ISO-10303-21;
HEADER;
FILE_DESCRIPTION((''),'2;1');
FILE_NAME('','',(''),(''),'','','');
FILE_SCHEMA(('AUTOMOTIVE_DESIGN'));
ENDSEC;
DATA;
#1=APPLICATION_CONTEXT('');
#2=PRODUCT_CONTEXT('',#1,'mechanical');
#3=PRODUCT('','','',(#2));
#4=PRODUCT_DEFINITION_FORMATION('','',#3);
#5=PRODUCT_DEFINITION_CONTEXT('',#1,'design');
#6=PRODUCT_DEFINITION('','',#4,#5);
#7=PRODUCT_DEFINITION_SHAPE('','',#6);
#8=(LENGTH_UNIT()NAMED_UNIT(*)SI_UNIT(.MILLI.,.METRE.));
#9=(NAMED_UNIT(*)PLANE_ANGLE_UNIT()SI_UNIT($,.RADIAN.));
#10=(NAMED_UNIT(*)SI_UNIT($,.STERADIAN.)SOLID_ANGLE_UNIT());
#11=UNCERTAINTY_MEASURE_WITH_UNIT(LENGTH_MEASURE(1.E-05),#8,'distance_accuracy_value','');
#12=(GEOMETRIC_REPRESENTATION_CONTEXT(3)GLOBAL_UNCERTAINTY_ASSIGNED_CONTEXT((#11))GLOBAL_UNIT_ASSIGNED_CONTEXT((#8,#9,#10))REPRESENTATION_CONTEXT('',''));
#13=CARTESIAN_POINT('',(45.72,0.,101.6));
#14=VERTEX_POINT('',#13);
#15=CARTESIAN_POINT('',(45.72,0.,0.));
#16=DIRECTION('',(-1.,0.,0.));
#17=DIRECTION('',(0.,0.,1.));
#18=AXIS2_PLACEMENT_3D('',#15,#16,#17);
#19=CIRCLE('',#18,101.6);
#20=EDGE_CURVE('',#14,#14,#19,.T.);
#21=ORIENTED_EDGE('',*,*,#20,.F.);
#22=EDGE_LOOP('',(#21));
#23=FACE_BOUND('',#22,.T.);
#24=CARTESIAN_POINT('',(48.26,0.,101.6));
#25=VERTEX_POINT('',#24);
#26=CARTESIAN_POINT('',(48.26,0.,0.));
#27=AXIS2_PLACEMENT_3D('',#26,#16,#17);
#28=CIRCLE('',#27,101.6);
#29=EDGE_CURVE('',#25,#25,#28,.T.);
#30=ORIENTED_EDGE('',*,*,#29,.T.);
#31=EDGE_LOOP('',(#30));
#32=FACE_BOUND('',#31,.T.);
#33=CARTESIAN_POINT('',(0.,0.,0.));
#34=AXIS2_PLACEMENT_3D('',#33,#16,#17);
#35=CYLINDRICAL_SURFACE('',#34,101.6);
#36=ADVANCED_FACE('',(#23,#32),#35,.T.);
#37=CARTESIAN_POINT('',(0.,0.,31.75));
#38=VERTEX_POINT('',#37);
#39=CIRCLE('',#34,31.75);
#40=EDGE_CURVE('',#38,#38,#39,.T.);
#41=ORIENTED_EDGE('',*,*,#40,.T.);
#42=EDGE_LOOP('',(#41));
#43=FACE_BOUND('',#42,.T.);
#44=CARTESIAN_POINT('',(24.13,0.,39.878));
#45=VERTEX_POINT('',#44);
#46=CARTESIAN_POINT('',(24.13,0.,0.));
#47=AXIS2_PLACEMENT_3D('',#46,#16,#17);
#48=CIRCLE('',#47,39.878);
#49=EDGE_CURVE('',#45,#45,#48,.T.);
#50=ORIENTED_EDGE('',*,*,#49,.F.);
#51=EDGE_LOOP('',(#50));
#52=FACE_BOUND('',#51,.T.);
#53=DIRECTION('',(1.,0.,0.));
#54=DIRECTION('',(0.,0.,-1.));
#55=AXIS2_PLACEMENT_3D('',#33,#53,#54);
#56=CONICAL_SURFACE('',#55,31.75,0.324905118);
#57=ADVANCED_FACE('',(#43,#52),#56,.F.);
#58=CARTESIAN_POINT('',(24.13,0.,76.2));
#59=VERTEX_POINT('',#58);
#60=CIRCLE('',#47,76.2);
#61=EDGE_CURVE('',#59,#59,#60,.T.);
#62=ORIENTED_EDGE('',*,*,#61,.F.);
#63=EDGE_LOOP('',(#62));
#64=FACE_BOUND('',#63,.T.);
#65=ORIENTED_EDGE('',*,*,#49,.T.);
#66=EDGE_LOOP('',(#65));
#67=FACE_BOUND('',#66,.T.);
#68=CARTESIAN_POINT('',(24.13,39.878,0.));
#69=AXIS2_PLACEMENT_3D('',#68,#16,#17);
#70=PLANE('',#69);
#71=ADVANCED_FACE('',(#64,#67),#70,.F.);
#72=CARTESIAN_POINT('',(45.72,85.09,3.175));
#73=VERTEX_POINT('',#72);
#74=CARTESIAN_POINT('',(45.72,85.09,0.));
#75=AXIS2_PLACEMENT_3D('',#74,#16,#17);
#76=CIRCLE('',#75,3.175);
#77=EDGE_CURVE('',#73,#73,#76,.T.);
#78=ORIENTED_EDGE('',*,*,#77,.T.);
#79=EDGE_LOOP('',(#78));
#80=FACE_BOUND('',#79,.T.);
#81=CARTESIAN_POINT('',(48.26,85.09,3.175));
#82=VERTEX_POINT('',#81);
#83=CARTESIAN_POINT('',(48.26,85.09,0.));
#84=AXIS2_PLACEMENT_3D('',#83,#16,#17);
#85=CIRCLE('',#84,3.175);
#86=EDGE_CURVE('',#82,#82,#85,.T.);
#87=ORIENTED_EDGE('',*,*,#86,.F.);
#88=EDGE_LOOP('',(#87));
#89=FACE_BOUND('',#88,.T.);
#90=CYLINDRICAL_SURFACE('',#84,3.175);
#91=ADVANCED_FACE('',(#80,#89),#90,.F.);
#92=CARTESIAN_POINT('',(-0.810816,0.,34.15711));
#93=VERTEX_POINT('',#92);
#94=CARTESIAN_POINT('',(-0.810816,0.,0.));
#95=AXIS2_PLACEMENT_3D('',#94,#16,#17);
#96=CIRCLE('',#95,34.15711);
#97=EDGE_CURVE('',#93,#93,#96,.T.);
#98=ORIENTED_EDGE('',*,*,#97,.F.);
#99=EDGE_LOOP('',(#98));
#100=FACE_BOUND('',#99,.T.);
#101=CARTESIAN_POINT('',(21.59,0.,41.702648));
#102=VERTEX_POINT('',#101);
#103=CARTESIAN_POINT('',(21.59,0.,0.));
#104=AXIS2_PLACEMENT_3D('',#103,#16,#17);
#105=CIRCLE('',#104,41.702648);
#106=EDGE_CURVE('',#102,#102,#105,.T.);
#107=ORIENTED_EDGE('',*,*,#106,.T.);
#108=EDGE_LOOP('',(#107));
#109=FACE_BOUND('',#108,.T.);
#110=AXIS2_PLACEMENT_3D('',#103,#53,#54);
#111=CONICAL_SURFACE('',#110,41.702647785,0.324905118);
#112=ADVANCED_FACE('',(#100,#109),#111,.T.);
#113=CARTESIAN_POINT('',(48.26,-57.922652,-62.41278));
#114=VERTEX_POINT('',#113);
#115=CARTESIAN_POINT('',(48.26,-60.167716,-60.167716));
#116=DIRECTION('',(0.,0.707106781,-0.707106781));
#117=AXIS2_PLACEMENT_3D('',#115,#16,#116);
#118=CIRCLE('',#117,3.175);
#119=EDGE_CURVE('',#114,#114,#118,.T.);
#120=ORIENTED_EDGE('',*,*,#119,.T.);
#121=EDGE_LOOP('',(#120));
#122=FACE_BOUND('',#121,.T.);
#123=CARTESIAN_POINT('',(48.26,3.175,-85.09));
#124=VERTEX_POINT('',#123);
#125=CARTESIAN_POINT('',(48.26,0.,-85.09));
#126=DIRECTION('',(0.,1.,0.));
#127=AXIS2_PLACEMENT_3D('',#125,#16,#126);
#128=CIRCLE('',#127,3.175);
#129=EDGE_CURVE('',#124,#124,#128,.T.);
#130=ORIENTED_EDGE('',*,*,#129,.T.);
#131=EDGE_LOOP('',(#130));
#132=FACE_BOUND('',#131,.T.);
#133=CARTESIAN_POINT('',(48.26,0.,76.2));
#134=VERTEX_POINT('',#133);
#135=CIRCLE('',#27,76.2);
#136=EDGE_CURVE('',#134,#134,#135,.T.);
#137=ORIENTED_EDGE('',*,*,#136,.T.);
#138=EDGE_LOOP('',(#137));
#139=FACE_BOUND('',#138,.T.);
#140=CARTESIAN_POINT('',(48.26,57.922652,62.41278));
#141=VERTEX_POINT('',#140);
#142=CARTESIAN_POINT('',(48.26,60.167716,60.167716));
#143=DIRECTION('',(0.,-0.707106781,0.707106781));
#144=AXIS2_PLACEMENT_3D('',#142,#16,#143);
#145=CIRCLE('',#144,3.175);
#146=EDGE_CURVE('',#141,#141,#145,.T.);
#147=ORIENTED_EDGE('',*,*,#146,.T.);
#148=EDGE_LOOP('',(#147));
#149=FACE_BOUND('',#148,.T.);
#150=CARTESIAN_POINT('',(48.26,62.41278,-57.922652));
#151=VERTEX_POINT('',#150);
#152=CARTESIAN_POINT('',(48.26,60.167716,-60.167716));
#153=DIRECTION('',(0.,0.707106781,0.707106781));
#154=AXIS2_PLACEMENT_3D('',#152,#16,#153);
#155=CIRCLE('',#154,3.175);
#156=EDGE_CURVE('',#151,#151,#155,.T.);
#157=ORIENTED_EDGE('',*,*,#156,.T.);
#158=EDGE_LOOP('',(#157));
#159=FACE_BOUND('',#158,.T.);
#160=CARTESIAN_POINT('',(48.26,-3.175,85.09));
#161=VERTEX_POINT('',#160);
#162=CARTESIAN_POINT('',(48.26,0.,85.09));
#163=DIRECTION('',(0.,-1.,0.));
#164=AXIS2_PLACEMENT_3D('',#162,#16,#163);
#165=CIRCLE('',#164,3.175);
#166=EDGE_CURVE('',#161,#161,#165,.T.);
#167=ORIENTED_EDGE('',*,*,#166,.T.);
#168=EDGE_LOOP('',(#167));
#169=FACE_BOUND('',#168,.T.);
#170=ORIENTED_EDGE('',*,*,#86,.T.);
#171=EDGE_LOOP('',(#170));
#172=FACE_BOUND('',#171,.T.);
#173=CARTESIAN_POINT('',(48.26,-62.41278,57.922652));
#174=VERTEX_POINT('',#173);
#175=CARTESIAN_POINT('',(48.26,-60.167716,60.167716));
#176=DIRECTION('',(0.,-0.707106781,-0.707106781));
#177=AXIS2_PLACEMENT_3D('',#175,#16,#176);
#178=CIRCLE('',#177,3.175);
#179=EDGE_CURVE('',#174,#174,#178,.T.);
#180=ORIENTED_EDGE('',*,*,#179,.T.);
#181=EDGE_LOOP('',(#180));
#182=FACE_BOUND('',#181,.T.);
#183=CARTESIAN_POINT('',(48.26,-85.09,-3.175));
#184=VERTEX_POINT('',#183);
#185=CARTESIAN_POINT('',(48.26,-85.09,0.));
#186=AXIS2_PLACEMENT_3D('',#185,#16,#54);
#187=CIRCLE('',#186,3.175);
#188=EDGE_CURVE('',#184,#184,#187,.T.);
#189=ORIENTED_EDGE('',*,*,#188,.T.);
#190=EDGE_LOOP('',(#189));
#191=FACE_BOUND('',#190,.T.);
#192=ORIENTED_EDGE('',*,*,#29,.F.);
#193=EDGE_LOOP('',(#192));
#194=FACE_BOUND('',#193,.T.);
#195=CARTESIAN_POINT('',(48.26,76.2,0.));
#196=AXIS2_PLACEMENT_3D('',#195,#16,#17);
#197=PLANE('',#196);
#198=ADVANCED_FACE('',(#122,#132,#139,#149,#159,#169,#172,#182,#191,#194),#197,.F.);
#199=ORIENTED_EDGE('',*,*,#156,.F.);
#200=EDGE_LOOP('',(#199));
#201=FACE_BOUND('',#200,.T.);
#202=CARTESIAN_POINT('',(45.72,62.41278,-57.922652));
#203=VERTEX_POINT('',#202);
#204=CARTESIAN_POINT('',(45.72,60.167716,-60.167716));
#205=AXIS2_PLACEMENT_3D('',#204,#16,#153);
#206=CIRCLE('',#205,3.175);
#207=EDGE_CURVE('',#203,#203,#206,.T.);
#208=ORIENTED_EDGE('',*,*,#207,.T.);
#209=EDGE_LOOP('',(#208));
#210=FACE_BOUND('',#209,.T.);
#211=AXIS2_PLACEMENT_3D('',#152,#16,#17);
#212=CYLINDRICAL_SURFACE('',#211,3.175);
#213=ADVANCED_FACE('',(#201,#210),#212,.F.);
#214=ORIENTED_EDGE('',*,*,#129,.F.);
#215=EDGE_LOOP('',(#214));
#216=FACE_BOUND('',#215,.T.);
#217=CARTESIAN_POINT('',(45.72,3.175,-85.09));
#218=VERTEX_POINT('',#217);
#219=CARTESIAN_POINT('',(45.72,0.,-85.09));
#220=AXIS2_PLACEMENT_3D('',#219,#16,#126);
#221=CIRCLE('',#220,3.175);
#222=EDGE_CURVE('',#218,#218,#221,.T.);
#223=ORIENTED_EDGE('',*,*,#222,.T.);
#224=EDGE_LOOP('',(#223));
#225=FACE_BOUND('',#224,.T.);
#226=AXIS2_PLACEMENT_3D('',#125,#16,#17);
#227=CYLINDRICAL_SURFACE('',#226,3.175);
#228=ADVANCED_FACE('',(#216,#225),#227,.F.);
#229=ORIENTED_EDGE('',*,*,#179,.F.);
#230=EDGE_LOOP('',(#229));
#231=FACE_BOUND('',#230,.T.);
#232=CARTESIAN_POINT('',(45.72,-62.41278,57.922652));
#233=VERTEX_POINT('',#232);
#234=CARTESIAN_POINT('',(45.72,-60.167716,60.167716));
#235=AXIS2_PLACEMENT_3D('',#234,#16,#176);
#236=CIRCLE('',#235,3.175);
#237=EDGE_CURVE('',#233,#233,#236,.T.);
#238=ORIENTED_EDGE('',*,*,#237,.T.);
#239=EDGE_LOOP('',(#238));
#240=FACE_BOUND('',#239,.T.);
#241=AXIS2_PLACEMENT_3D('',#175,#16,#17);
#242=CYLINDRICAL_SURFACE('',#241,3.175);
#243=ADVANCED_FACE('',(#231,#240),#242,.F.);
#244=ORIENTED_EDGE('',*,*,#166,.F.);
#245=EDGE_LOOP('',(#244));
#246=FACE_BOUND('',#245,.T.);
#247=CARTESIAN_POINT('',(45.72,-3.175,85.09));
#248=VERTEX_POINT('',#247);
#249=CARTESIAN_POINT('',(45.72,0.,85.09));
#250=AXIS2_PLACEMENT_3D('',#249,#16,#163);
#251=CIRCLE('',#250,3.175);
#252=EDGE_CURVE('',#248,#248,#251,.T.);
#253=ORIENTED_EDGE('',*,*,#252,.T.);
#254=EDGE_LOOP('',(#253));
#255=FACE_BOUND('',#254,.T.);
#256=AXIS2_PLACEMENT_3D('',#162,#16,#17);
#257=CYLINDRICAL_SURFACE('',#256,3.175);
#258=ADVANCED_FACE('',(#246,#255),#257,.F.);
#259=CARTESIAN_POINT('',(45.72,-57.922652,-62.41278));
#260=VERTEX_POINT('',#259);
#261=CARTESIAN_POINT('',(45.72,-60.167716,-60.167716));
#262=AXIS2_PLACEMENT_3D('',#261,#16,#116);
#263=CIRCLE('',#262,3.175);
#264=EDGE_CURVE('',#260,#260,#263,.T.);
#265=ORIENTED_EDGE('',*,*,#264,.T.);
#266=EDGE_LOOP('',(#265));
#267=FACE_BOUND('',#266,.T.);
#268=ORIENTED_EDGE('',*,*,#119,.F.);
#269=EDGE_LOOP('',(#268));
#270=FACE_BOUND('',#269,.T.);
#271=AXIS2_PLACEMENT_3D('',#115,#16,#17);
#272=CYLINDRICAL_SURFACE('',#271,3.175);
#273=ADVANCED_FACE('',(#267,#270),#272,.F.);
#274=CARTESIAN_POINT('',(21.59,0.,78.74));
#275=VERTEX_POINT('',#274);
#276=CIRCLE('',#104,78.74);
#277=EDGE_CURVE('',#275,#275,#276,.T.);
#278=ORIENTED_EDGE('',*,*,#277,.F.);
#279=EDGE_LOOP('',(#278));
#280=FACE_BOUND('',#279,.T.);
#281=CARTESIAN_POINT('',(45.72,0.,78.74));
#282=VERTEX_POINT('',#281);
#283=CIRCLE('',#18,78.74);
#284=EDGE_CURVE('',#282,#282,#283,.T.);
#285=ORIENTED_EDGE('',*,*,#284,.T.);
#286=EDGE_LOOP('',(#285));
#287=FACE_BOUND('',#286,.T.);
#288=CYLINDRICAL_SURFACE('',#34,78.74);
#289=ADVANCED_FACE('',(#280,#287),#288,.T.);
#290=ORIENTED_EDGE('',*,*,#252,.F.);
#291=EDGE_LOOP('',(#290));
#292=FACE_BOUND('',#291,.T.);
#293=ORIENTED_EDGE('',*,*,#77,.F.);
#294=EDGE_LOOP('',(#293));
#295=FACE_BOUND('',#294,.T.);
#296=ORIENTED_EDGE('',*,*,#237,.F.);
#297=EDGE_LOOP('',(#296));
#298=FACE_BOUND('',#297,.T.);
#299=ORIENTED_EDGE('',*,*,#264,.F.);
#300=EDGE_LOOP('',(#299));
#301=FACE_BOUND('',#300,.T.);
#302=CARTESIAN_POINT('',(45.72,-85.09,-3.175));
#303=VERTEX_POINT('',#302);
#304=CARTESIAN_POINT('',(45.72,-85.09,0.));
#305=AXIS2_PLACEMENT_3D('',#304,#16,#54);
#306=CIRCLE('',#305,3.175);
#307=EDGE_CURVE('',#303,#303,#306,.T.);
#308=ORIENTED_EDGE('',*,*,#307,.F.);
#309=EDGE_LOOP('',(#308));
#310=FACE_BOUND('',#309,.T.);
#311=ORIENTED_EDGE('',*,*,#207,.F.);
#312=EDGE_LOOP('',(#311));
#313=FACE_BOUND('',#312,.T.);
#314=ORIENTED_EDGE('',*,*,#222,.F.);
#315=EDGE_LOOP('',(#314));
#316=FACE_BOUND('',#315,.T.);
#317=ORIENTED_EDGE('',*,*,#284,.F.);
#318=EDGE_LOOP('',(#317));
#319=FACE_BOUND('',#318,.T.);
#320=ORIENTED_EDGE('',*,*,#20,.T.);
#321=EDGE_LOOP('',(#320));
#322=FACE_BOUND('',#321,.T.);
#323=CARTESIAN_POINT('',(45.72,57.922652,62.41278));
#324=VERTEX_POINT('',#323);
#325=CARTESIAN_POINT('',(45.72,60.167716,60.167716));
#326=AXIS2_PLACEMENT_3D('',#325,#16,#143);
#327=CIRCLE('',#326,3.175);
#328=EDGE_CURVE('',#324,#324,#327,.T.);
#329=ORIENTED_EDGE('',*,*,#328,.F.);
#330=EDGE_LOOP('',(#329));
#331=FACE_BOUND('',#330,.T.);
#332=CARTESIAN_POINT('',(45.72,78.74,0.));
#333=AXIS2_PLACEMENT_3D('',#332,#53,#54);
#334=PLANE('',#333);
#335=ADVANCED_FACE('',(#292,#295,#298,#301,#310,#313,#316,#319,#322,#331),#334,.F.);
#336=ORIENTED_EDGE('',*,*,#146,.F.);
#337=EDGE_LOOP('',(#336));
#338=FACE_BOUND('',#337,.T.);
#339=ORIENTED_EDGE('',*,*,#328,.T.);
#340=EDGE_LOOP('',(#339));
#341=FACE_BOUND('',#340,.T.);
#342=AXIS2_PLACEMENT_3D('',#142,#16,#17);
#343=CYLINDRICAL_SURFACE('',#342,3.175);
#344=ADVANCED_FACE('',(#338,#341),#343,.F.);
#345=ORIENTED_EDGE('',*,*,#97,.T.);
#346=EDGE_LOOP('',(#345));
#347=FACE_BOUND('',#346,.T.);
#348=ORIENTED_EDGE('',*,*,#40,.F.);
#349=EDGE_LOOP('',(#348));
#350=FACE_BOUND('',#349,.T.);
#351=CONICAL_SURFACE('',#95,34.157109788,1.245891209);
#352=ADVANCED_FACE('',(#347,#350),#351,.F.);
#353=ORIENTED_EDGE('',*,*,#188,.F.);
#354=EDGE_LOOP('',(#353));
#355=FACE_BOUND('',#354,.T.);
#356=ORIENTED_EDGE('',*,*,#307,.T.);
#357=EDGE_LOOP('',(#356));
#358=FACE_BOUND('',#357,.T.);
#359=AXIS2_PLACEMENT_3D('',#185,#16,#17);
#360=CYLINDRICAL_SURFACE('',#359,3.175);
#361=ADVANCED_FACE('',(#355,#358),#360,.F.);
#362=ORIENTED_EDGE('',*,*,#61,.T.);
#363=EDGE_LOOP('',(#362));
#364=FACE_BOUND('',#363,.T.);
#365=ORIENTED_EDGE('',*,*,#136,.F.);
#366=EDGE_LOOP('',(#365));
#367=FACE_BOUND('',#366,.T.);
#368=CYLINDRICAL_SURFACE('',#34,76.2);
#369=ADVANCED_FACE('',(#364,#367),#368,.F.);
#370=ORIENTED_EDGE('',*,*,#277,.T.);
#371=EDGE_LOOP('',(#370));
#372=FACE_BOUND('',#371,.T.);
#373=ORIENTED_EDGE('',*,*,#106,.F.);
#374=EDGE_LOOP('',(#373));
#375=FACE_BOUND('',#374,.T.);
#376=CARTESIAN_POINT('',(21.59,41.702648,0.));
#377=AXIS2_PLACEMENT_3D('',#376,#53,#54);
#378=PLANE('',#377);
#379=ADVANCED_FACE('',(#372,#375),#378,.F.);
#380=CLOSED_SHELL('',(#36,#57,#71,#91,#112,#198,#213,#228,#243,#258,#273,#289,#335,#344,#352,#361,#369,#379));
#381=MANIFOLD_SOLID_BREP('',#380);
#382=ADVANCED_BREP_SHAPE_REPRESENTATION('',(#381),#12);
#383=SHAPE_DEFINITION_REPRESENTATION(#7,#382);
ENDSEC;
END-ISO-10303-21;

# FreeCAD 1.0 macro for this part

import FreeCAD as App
import Part
import Sketcher

V = App.Vector
Q = App.Units.Quantity


def add_polygon(sketch, points):
    """Adds a closed chain of lines whose ends are joined by coincident constraints."""
    first, n = sketch.GeometryCount, len(points)
    for a, b in zip(points, points[1:] + points[:1]):
        sketch.addGeometry(Part.LineSegment(App.Vector(*a, 0), App.Vector(*b, 0)), False)
    for i in range(n):
        sketch.addConstraint(Sketcher.Constraint("Coincident", first + i, 2, first + (i + 1) % n, 1))

doc = App.newDocument("Part")
params = doc.addObject("Spreadsheet::Sheet", "Params")
for row, (alias, value) in enumerate([
    ("sketch1_height", "1 in"),
    ("sketch1_width", "0.1 in"),
    ("sketch1_height2", "0.9 in"),
    ("sketch1_length", "0.1 in"),
    ("sketch1_width2", "0.95 in"),
    ("revolution_angle", "360 deg"),
    ("sketch2_diameter", "0.25 in"),
    ("pocket1_length", "0.1 in"),
], start=1):
    params.set(f"A{row}", alias)
    params.set(f"B{row}", "=" + value)
    params.setAlias(f"B{row}", alias)

body = doc.addObject("PartDesign::Body", "Body")

# Sketch on XY plane
sketch1 = doc.addObject("Sketcher::SketchObject", "Sketch")
body.addObject(sketch1)
sketch1.AttachmentSupport = (doc.XY_Plane, [""])
sketch1.MapMode = "FlatFace"
add_polygon(sketch1, [(0, 31.8), (24.1, 39.9), (24.1, 76.2), (48.3, 76.2), (48.3, 101.6), (45.7, 101.6), (45.7, 78.7), (21.6, 78.7), (21.6, 41.7), (-0.8, 34.2)])  # lines 0-9
sketch1.addConstraint([
    Sketcher.Constraint("Vertical", 1),
    Sketcher.Constraint("Horizontal", 2),
    Sketcher.Constraint("Vertical", 3),
    Sketcher.Constraint("Horizontal", 4),
    Sketcher.Constraint("Vertical", 5),
    Sketcher.Constraint("Horizontal", 6),
    Sketcher.Constraint("Vertical", 7),
    Sketcher.Constraint("PointOnObject", 9, 2, -2),
    Sketcher.Constraint("Parallel", 0, 8),
    Sketcher.Constraint("Perpendicular", 8, 9),
    Sketcher.Constraint("Equal", 2, 6),
    Sketcher.Constraint("DistanceY", 3, 1, 3, 2, Q("1 in")),
    Sketcher.Constraint("DistanceX", 4, 2, 4, 1, Q("0.1 in")),
    Sketcher.Constraint("DistanceY", 5, 2, 5, 1, Q("0.9 in")),
    Sketcher.Constraint("DistanceY", -1, 1, 1, 2, Q("3 in")),
    Sketcher.Constraint("Distance", 9, Q("0.1 in")),
    Sketcher.Constraint("DistanceX", 2, 1, 2, 2, Q("0.95 in")),
    Sketcher.Constraint("DistanceY", 1, 1, 1, 2, Q("1.43 in")),
    Sketcher.Constraint("DistanceX", -1, 1, 2, 2, Q("1.9 in")),
    Sketcher.Constraint("DistanceY", -1, 1, 9, 2, Q("1.25 in")),
])
sketch1.setExpression("Constraints[21]", "Params.sketch1_height")
sketch1.setExpression("Constraints[22]", "Params.sketch1_width")
sketch1.setExpression("Constraints[23]", "Params.sketch1_height2")
sketch1.setExpression("Constraints[25]", "Params.sketch1_length")
sketch1.setExpression("Constraints[26]", "Params.sketch1_width2")
revolution = doc.addObject("PartDesign::Revolution", "Revolution")
body.addObject(revolution)
revolution.Profile = sketch1
revolution.ReferenceAxis = (sketch1, ["H_Axis"])
revolution.setExpression("Angle", "Params.revolution_angle")

# Sketch on YZ plane
sketch2 = doc.addObject("Sketcher::SketchObject", "Sketch001")
body.addObject(sketch2)
sketch2.AttachmentSupport = (doc.YZ_Plane, [""])
sketch2.MapMode = "FlatFace"
sketch2.AttachmentOffset = App.Placement(V(0, 0, 1.8 * 25.4), App.Rotation())
sketch2.addGeometry(Part.Circle(V(85.1, 0, 0), V(0, 0, 1), 3.2), False)
sketch2.addConstraint([
    Sketcher.Constraint("PointOnObject", 0, 3, -1),
    Sketcher.Constraint("Diameter", 0, Q("0.25 in")),
    Sketcher.Constraint("DistanceX", -1, 1, 0, 3, Q("3.35 in")),
])
sketch2.setExpression("Constraints[1]", "Params.sketch2_diameter")
pocket1 = doc.addObject("PartDesign::Pocket", "Pocket")
body.addObject(pocket1)
pocket1.Profile = sketch2
pocket1.setExpression("Length", "Params.pocket1_length")
pocket1.Reversed = True
doc.recompute()

polarpattern = doc.addObject("PartDesign::PolarPattern", "PolarPattern")
body.addObject(polarpattern)
polarpattern.Originals = [pocket1]
polarpattern.Axis = (doc.X_Axis, [""])
polarpattern.Angle = 360
polarpattern.Occurrences = 8
body.Tip = polarpattern

doc.recompute()
